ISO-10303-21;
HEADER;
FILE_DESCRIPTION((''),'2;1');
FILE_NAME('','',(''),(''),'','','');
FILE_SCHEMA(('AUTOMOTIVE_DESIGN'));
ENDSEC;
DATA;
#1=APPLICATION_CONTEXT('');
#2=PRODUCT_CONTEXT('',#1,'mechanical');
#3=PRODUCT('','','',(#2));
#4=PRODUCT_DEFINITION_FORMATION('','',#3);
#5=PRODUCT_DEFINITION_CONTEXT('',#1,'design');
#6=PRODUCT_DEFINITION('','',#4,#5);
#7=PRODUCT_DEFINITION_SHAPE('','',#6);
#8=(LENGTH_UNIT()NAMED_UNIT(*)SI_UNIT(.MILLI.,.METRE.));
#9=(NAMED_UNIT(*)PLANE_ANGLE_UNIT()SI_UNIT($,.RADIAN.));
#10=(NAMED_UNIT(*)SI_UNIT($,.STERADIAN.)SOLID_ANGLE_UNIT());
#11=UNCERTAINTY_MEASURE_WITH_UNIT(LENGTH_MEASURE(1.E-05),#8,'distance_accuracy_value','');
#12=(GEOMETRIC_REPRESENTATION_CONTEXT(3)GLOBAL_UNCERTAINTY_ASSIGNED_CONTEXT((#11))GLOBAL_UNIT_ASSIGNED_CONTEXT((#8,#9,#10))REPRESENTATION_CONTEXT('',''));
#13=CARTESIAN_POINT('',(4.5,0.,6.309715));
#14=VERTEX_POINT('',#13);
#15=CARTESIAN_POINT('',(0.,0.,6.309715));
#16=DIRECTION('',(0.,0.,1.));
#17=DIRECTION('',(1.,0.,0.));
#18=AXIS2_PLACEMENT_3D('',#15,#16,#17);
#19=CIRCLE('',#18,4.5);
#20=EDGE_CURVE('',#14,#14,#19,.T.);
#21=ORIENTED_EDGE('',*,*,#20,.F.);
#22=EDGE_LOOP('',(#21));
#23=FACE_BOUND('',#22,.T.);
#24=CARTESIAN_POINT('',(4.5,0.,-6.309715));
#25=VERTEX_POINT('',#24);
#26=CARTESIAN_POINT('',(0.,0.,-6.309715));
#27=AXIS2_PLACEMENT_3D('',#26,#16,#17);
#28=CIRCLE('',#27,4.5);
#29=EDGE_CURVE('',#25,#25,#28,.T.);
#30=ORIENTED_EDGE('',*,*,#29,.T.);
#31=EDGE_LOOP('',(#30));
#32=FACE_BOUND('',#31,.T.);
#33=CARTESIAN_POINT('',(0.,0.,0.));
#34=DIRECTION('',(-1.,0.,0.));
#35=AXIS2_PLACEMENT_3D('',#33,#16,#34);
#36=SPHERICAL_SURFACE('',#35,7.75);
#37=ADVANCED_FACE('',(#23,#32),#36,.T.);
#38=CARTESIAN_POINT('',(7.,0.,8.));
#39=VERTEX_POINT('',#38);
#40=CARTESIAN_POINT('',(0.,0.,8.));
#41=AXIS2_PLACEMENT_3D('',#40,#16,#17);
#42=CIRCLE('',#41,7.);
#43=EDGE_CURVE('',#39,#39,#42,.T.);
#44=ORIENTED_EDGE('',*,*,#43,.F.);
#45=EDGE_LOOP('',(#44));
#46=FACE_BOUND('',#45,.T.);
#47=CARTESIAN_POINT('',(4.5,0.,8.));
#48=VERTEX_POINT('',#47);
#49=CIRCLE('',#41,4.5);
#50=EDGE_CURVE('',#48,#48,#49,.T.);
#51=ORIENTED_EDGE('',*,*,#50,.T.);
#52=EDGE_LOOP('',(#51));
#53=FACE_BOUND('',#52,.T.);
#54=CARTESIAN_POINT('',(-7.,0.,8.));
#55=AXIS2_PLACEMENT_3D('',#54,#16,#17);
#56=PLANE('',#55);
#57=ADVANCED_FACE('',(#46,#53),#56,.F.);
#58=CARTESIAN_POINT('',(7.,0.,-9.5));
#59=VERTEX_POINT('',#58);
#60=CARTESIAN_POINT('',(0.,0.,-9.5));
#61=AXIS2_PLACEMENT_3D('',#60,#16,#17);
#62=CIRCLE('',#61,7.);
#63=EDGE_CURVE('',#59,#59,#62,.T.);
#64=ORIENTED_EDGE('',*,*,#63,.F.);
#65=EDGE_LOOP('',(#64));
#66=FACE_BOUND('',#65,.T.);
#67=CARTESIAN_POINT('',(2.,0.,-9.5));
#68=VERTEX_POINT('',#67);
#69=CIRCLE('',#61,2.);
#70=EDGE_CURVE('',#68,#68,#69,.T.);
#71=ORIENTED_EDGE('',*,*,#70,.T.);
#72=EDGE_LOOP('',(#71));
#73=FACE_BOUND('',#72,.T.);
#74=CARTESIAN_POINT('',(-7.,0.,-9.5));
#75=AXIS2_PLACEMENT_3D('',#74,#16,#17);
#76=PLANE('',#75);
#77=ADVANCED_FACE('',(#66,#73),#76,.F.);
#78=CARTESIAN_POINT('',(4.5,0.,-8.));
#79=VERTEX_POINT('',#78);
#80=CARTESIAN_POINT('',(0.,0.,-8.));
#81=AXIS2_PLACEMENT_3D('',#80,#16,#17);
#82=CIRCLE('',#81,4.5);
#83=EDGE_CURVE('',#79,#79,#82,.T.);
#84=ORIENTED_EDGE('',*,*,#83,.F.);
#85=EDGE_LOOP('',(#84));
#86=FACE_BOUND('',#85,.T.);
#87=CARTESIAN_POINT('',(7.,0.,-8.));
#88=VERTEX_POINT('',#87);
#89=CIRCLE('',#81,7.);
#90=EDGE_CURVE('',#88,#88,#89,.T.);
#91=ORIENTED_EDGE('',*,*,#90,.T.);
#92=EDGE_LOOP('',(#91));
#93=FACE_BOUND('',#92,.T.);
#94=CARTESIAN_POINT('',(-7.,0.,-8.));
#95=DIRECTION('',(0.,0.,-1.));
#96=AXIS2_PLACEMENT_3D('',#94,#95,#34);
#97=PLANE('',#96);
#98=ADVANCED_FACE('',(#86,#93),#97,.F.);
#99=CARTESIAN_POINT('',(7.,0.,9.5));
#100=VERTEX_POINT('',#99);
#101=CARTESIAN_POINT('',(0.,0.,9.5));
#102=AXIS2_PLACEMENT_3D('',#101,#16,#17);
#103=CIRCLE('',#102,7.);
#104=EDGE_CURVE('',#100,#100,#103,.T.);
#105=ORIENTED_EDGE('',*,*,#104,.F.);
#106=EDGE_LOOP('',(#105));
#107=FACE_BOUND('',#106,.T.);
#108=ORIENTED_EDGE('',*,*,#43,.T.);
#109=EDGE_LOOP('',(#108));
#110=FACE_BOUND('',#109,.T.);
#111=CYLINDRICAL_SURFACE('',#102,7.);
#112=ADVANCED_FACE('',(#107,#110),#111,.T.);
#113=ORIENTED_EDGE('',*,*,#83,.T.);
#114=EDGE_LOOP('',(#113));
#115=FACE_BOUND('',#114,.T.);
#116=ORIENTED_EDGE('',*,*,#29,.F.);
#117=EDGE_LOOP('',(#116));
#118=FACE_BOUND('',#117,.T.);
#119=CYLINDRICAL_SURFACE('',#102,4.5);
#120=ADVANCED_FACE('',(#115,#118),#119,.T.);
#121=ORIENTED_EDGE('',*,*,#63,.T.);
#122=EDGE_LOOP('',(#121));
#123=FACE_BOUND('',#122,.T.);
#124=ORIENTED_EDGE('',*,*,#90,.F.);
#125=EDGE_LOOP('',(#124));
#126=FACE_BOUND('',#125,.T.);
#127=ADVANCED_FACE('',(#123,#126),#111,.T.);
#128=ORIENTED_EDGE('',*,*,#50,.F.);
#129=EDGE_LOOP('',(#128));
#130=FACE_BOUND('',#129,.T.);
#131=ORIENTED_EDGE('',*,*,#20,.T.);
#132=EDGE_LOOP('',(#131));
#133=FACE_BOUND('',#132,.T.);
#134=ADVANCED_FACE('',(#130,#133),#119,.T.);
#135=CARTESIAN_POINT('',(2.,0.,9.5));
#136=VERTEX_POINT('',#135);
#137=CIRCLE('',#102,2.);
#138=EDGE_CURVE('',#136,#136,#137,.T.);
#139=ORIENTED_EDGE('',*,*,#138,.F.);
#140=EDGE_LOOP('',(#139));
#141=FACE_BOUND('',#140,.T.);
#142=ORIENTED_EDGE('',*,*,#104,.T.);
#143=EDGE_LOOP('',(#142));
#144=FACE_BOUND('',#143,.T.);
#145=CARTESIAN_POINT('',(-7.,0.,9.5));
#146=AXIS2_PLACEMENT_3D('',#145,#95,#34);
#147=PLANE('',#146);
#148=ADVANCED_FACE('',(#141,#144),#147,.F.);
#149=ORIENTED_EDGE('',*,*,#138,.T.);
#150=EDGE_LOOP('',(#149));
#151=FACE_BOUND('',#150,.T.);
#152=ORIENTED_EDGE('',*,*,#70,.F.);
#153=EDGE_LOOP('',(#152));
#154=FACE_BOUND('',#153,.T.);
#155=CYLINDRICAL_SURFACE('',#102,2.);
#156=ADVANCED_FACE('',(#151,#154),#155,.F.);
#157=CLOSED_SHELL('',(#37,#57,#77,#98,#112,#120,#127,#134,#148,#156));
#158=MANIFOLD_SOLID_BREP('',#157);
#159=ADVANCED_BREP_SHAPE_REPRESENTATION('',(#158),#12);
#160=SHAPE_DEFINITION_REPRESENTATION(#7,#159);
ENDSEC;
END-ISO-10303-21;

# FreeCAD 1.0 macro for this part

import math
import FreeCAD as App
import Part
import Sketcher

V = App.Vector

doc = App.newDocument("Part")
params = doc.addObject("Spreadsheet::Sheet", "Params")
for row, (alias, value) in enumerate([
    ("sketch1_width", "7 mm"),
    ("sketch1_height", "19 mm"),
    ("sketch1_radius", "7.75 mm"),
    ("sketch1_width2", "2.5 mm"),
    ("sketch1_height2", "1.5 mm"),
    ("revolution_angle", "360 deg"),
    ("sketch2_diameter", "4 mm"),
    ("hole_diameter", "4 mm"),
], start=1):
    params.set(f"A{row}", alias)
    params.set(f"B{row}", "=" + value)
    params.setAlias(f"B{row}", alias)

body = doc.addObject("PartDesign::Body", "Body")

# Sketch on XZ plane
sketch1 = body.newObject("Sketcher::SketchObject", "Sketch")
sketch1.AttachmentSupport = (doc.getObject("XZ_Plane"), [""])
sketch1.MapMode = "FlatFace"
sketch1.addGeometry([
    Part.LineSegment(V(-4.5, 6.3, 0), V(-4.5, 8, 0)),  # 0
    Part.LineSegment(V(-4.5, 8, 0), V(-7, 8, 0)),  # 1
    Part.LineSegment(V(-7, 8, 0), V(-7, 9.5, 0)),  # 2
    Part.LineSegment(V(-7, 9.5, 0), V(0, 9.5, 0)),  # 3
    Part.LineSegment(V(0, 9.5, 0), V(0, -9.5, 0)),  # 4
    Part.LineSegment(V(0, -9.5, 0), V(-7, -9.5, 0)),  # 5
    Part.LineSegment(V(-7, -9.5, 0), V(-7, -8, 0)),  # 6
    Part.LineSegment(V(-7, -8, 0), V(-4.5, -8, 0)),  # 7
    Part.LineSegment(V(-4.5, -8, 0), V(-4.5, -6.3, 0)),  # 8
    Part.ArcOfCircle(Part.Circle(V(0, 0, 0), V(0, 0, 1), 7.8), math.radians(125), math.radians(235)),  # 9
], False)
sketch1.addConstraint([
    Sketcher.Constraint("Coincident", 0, 2, 1, 1),
    Sketcher.Constraint("Coincident", 1, 2, 2, 1),
    Sketcher.Constraint("Coincident", 2, 2, 3, 1),
    Sketcher.Constraint("Coincident", 3, 2, 4, 1),
    Sketcher.Constraint("Coincident", 4, 2, 5, 1),
    Sketcher.Constraint("Coincident", 5, 2, 6, 1),
    Sketcher.Constraint("Coincident", 6, 2, 7, 1),
    Sketcher.Constraint("Coincident", 7, 2, 8, 1),
    Sketcher.Constraint("Coincident", 8, 2, 9, 2),
    Sketcher.Constraint("Coincident", 9, 1, 0, 1),
    Sketcher.Constraint("Vertical", 0),
    Sketcher.Constraint("Horizontal", 1),
    Sketcher.Constraint("Vertical", 2),
    Sketcher.Constraint("Horizontal", 3),
    Sketcher.Constraint("Vertical", 4),
    Sketcher.Constraint("Horizontal", 5),
    Sketcher.Constraint("Vertical", 6),
    Sketcher.Constraint("Horizontal", 7),
    Sketcher.Constraint("Vertical", 8),
    Sketcher.Constraint("Coincident", 9, 3, -1, 1),
    Sketcher.Constraint("Symmetric", 3, 2, 4, 2, -1, 1),
    Sketcher.Constraint("Symmetric", 1, 2, 6, 2, -1),
    Sketcher.Constraint("Vertical", 0, 2, 7, 2),
    Sketcher.Constraint("DistanceX", 3, 1, 3, 2, 7.0),
    Sketcher.Constraint("DistanceY", 4, 2, 4, 1, 19.0),
    Sketcher.Constraint("Radius", 9, 7.75),
    Sketcher.Constraint("DistanceX", 1, 2, 1, 1, 2.5),
    Sketcher.Constraint("DistanceY", 2, 1, 2, 2, 1.5),
])
sketch1.setExpression("Constraints[23]", "Params.sketch1_width")
sketch1.setExpression("Constraints[24]", "Params.sketch1_height")
sketch1.setExpression("Constraints[25]", "Params.sketch1_radius")
sketch1.setExpression("Constraints[26]", "Params.sketch1_width2")
sketch1.setExpression("Constraints[27]", "Params.sketch1_height2")
revolution = body.newObject("PartDesign::Revolution", "Revolution")
revolution.Profile = sketch1
revolution.ReferenceAxis = (sketch1, ["V_Axis"])
revolution.setExpression("Angle", "Params.revolution_angle")

# Sketch on XY plane
sketch2 = body.newObject("Sketcher::SketchObject", "Sketch001")
sketch2.AttachmentSupport = (doc.getObject("XY_Plane"), [""])
sketch2.MapMode = "FlatFace"
sketch2.AttachmentOffset = App.Placement(V(0, 0, 9.5), App.Rotation())
sketch2.addGeometry(Part.Circle(V(0, 0, 0), V(0, 0, 1), 2), False)
sketch2.addConstraint([
    Sketcher.Constraint("Coincident", 0, 3, -1, 1),
    Sketcher.Constraint("Diameter", 0, 4.0),
])
sketch2.setExpression("Constraints[1]", "Params.sketch2_diameter")
doc.recompute()
hole = body.newObject("PartDesign::Hole", "Hole")
hole.Profile = sketch2
hole.ThreadType = "None"
hole.setExpression("Diameter", "Params.hole_diameter")
hole.DepthType = "ThroughAll"

doc.recompute()
